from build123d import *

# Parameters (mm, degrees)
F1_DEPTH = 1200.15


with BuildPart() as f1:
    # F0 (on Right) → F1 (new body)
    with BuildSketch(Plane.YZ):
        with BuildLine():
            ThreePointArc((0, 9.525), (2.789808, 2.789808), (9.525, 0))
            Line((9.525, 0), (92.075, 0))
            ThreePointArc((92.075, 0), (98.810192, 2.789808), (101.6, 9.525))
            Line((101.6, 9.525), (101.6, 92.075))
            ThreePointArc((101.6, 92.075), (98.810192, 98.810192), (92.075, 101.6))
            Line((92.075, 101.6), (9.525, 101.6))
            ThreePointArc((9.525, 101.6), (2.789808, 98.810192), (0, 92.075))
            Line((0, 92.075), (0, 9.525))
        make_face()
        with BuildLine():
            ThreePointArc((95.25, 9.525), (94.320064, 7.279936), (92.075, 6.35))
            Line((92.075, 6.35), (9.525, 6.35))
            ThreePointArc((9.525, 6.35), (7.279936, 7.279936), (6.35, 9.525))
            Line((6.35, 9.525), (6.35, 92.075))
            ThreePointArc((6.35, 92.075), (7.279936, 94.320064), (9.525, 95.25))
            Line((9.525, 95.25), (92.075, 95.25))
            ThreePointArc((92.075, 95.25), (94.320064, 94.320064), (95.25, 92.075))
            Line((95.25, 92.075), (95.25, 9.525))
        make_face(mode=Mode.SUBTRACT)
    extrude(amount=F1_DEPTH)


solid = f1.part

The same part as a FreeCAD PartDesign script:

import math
import FreeCAD as App
import Part
import Sketcher
from FreeCAD import Vector
Q = App.Units.Quantity

doc = App.newDocument("Part")
params = doc.addObject("Spreadsheet::Sheet", "Params")
for row, (alias, value) in enumerate([
    ("sketch1_radius", "0.375 in"),
    ("sketch1_radius2", "0.125 in"),
    ("pad1_length", "47.25 in"),
], start=1):
    params.set(f"A{row}", alias)
    params.set(f"B{row}", "=" + value)
    params.setAlias(f"B{row}", alias)

body = doc.addObject("PartDesign::Body", "Body")

sketch1 = doc.addObject("Sketcher::SketchObject", "Sketch")
body.addObject(sketch1)
sketch1.AttachmentSupport = (doc.YZ_Plane, [""])
sketch1.MapMode = "FlatFace"
sketch1.addGeometry(Part.ArcOfCircle(Part.Circle(Vector(9.5, 9.5, 0), Vector(0, 0, 1), 9.5), math.radians(-180), math.radians(-90)), False)
sketch1.addGeometry(Part.LineSegment(Vector(9.5, 0, 0), Vector(92.1, 0, 0)), False)
sketch1.addGeometry(Part.ArcOfCircle(Part.Circle(Vector(92.1, 9.5, 0), Vector(0, 0, 1), 9.5), math.radians(-90), math.radians(0)), False)
sketch1.addGeometry(Part.LineSegment(Vector(101.6, 9.5, 0), Vector(101.6, 92.1, 0)), False)
sketch1.addGeometry(Part.ArcOfCircle(Part.Circle(Vector(92.1, 92.1, 0), Vector(0, 0, 1), 9.5), math.radians(0), math.radians(90)), False)
sketch1.addGeometry(Part.LineSegment(Vector(92.1, 101.6, 0), Vector(9.5, 101.6, 0)), False)
sketch1.addGeometry(Part.ArcOfCircle(Part.Circle(Vector(9.5, 92.1, 0), Vector(0, 0, 1), 9.5), math.radians(90), math.radians(180)), False)
sketch1.addGeometry(Part.LineSegment(Vector(0, 92.1, 0), Vector(0, 9.5, 0)), False)
sketch1.addGeometry(Part.LineSegment(Vector(95.2, 92.1, 0), Vector(95.2, 9.5, 0)), False)
sketch1.addGeometry(Part.ArcOfCircle(Part.Circle(Vector(92.1, 9.5, 0), Vector(0, 0, 1), 3.2), math.radians(-90), math.radians(0)), False)
sketch1.addGeometry(Part.LineSegment(Vector(92.1, 6.3, 0), Vector(9.5, 6.3, 0)), False)
sketch1.addGeometry(Part.ArcOfCircle(Part.Circle(Vector(9.5, 9.5, 0), Vector(0, 0, 1), 3.2), math.radians(-180), math.radians(-90)), False)
sketch1.addGeometry(Part.LineSegment(Vector(6.3, 9.5, 0), Vector(6.3, 92.1, 0)), False)
sketch1.addGeometry(Part.ArcOfCircle(Part.Circle(Vector(9.5, 92.1, 0), Vector(0, 0, 1), 3.2), math.radians(90), math.radians(180)), False)
sketch1.addGeometry(Part.LineSegment(Vector(9.5, 95.2, 0), Vector(92.1, 95.2, 0)), False)
sketch1.addGeometry(Part.ArcOfCircle(Part.Circle(Vector(92.1, 92.1, 0), Vector(0, 0, 1), 3.2), math.radians(0), math.radians(90)), False)
sketch1.addConstraint(Sketcher.Constraint("Tangent", 0, 2, 1, 1))
sketch1.addConstraint(Sketcher.Constraint("Tangent", 1, 2, 2, 1))
sketch1.addConstraint(Sketcher.Constraint("Tangent", 2, 2, 3, 1))
sketch1.addConstraint(Sketcher.Constraint("Tangent", 3, 2, 4, 1))
sketch1.addConstraint(Sketcher.Constraint("Tangent", 4, 2, 5, 1))
sketch1.addConstraint(Sketcher.Constraint("Tangent", 5, 2, 6, 1))
sketch1.addConstraint(Sketcher.Constraint("Tangent", 6, 2, 7, 1))
sketch1.addConstraint(Sketcher.Constraint("Tangent", 7, 2, 0, 1))
sketch1.addConstraint(Sketcher.Constraint("Tangent", 8, 2, 9, 2))
sketch1.addConstraint(Sketcher.Constraint("Tangent", 9, 1, 10, 1))
sketch1.addConstraint(Sketcher.Constraint("Tangent", 10, 2, 11, 2))
sketch1.addConstraint(Sketcher.Constraint("Tangent", 11, 1, 12, 1))
sketch1.addConstraint(Sketcher.Constraint("Tangent", 12, 2, 13, 2))
sketch1.addConstraint(Sketcher.Constraint("Tangent", 13, 1, 14, 1))
sketch1.addConstraint(Sketcher.Constraint("Tangent", 14, 2, 15, 2))
sketch1.addConstraint(Sketcher.Constraint("Tangent", 15, 1, 8, 1))
sketch1.addConstraint(Sketcher.Constraint("Horizontal", 1))
sketch1.addConstraint(Sketcher.Constraint("Vertical", 3))
sketch1.addConstraint(Sketcher.Constraint("Horizontal", 5))
sketch1.addConstraint(Sketcher.Constraint("Vertical", 7))
sketch1.addConstraint(Sketcher.Constraint("Vertical", 8))
sketch1.addConstraint(Sketcher.Constraint("Horizontal", 10))
sketch1.addConstraint(Sketcher.Constraint("Vertical", 12))
sketch1.addConstraint(Sketcher.Constraint("Horizontal", 14))
sketch1.addConstraint(Sketcher.Constraint("Coincident", 9, 3, 2, 3))
sketch1.addConstraint(Sketcher.Constraint("Coincident", 11, 3, 0, 3))
sketch1.addConstraint(Sketcher.Constraint("Coincident", 13, 3, 6, 3))
sketch1.addConstraint(Sketcher.Constraint("Equal", 0, 2))
sketch1.addConstraint(Sketcher.Constraint("Equal", 2, 4))
sketch1.addConstraint(Sketcher.Constraint("Equal", 4, 6))
sketch1.addConstraint(Sketcher.Constraint("Equal", 13, 15))
sketch1.addConstraint(Sketcher.Constraint("PointOnObject", 0, 2, -1))
sketch1.addConstraint(Sketcher.Constraint("PointOnObject", 6, 2, -2))
sketch1.addConstraint(Sketcher.Constraint("Equal", 14, 3))
sketch1.addConstraint(Sketcher.Constraint("DistanceX", -1, 1, 2, 2, Q("4 in")))
sketch1.addConstraint(Sketcher.Constraint("Radius", 0, Q("0.375 in")))
sketch1.addConstraint(Sketcher.Constraint("Radius", 9, Q("0.125 in")))
sketch1.setExpression("Constraints[35]", "Params.sketch1_radius")
sketch1.setExpression("Constraints[36]", "Params.sketch1_radius2")
pad1 = doc.addObject("PartDesign::Pad", "Pad")
body.addObject(pad1)
pad1.Profile = sketch1
pad1.setExpression("Length", "Params.pad1_length")

doc.recompute()
